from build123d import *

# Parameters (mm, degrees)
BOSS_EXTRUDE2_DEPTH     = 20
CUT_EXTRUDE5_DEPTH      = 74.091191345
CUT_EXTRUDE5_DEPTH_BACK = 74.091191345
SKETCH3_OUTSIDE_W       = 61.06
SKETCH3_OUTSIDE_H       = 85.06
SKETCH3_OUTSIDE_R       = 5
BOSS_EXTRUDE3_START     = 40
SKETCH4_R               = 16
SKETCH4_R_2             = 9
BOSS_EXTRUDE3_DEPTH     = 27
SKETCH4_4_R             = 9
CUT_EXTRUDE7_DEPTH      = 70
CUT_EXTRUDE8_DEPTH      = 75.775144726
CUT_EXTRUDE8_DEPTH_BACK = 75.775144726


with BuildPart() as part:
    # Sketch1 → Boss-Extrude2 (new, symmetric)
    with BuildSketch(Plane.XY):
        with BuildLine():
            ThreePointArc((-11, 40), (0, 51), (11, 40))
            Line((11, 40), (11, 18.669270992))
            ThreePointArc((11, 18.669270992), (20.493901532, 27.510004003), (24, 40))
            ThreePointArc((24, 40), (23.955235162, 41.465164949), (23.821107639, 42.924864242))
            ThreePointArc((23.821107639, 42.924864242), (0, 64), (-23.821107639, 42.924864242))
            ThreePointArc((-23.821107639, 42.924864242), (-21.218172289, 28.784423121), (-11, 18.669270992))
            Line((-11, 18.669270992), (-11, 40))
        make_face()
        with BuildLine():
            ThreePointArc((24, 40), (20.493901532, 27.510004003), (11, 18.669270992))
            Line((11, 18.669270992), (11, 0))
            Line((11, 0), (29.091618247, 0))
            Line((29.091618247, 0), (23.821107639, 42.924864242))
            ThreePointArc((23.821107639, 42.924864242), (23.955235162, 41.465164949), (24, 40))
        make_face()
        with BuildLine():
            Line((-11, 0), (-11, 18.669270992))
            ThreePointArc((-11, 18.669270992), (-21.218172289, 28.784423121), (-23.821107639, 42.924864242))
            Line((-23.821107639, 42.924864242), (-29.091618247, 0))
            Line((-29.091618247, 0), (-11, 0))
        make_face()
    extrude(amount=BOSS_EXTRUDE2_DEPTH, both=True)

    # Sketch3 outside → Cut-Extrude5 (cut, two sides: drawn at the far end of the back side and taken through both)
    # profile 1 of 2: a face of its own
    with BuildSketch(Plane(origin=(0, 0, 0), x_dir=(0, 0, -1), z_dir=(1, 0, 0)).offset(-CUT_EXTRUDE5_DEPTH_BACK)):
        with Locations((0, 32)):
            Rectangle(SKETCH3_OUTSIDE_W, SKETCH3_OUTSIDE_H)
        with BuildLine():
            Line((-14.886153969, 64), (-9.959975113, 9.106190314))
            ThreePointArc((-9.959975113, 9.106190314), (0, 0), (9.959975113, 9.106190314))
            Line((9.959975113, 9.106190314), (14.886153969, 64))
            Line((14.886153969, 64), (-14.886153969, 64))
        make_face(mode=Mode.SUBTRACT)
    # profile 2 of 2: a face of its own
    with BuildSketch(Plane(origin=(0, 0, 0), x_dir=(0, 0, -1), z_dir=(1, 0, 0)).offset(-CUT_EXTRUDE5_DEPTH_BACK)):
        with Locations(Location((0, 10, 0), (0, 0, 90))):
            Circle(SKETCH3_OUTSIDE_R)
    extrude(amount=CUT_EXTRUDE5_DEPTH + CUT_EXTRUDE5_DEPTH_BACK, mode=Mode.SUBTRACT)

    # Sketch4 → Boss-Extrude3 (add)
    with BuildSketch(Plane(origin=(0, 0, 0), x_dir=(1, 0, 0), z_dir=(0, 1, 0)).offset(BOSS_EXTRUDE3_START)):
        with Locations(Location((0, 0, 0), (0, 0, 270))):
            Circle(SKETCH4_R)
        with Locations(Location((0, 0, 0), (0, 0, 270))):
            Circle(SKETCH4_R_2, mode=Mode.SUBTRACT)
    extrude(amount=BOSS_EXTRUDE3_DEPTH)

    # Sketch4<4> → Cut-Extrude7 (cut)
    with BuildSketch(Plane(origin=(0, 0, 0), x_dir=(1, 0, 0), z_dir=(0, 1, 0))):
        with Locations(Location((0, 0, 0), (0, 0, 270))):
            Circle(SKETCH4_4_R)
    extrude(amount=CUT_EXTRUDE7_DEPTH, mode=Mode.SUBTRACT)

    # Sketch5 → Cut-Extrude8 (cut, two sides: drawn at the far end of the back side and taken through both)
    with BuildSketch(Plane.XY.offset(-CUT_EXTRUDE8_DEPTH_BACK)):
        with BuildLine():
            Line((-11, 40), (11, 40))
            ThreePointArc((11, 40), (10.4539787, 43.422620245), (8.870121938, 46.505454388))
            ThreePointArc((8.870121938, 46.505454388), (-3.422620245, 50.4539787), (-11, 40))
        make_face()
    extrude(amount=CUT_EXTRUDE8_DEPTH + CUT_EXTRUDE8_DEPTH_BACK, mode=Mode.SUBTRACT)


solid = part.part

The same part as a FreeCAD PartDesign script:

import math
import FreeCAD as App
import Part
import Sketcher
Q = App.Units.Quantity

doc = App.newDocument("Part")
body = doc.addObject("PartDesign::Body", "Body")

# Sketch on XY plane
sketch1 = body.newObject("Sketcher::SketchObject", "Sketch")
sketch1.AttachmentSupport = (doc.getObject("XY_Plane"), [""])
sketch1.MapMode = "FlatFace"
sketch1.addGeometry([
    Part.ArcOfCircle(Part.Circle(App.Vector(0, 40, 0), App.Vector(0, 0, 1), 11), math.radians(0), math.radians(180)),  # 0
    Part.LineSegment(App.Vector(11, 40, 0), App.Vector(11, 0, 0)),  # 1
    Part.LineSegment(App.Vector(11, 0, 0), App.Vector(29.091618, 0, 0)),  # 2
    Part.LineSegment(App.Vector(29.091618, 0, 0), App.Vector(23.821108, 42.924864, 0)),  # 3
    Part.ArcOfCircle(Part.Circle(App.Vector(0, 40, 0), App.Vector(0, 0, 1), 24), math.radians(7), math.radians(173)),  # 4
    Part.LineSegment(App.Vector(-23.821108, 42.924864, 0), App.Vector(-29.091618, 0, 0)),  # 5
    Part.LineSegment(App.Vector(-29.091618, 0, 0), App.Vector(-11, 0, 0)),  # 6
    Part.LineSegment(App.Vector(-11, 0, 0), App.Vector(-11, 40, 0)),  # 7
], False)
sketch1.addConstraint([
    Sketcher.Constraint("Tangent", 0, 1, 1, 1),
    Sketcher.Constraint("Coincident", 1, 2, 2, 1),
    Sketcher.Constraint("Coincident", 2, 2, 3, 1),
    Sketcher.Constraint("Tangent", 3, 2, 4, 1),
    Sketcher.Constraint("Tangent", 4, 2, 5, 1),
    Sketcher.Constraint("Coincident", 5, 2, 6, 1),
    Sketcher.Constraint("Coincident", 6, 2, 7, 1),
    Sketcher.Constraint("Tangent", 7, 2, 0, 2),
    Sketcher.Constraint("Vertical", 1),
    Sketcher.Constraint("Horizontal", 2),
    Sketcher.Constraint("Horizontal", 6),
    Sketcher.Constraint("Vertical", 7),
    Sketcher.Constraint("Coincident", 4, 3, 0, 3),
    Sketcher.Constraint("Symmetric", 2, 2, 5, 2, -1, 1),
    Sketcher.Constraint("Symmetric", 1, 2, 6, 2, -2),
    Sketcher.Constraint("Radius", 0, Q("11 mm")),
    Sketcher.Constraint("Radius", 4, Q("24 mm")),
    Sketcher.Constraint("DistanceY", 1, 2, 1, 1, Q("40 mm")),
    Sketcher.Constraint("Angle", 3, Q("97 deg")),
])
pad1 = body.newObject("PartDesign::Pad", "Pad")
pad1.Profile = sketch1
pad1.Length = 40
pad1.Midplane = True

# Sketch on YZ plane
sketch2 = body.newObject("Sketcher::SketchObject", "Sketch001")
sketch2.AttachmentSupport = (doc.getObject("YZ_Plane"), [""])
sketch2.MapMode = "FlatFace"
sketch2.addGeometry([
    Part.LineSegment(App.Vector(74.53, 30.53, 0), App.Vector(-10.53, 30.53, 0)),  # 0
    Part.LineSegment(App.Vector(-10.53, 30.53, 0), App.Vector(-10.53, -30.53, 0)),  # 1
    Part.LineSegment(App.Vector(-10.53, -30.53, 0), App.Vector(74.53, -30.53, 0)),  # 2
    Part.LineSegment(App.Vector(74.53, -30.53, 0), App.Vector(74.53, 30.53, 0)),  # 3
    Part.LineSegment(App.Vector(9.10619, 9.959975, 0), App.Vector(64, 14.886154, 0)),  # 4
    Part.LineSegment(App.Vector(64, 14.886154, 0), App.Vector(64, -14.886154, 0)),  # 5
    Part.LineSegment(App.Vector(64, -14.886154, 0), App.Vector(9.10619, -9.959975, 0)),  # 6
    Part.ArcOfCircle(Part.Circle(App.Vector(10, 0, 0), App.Vector(0, 0, 1), 10), math.radians(95.127996), math.radians(264.872004)),  # 7
    Part.Circle(App.Vector(10, 0, 0), App.Vector(0, 0, 1), 5),  # 8
], False)
sketch2.addConstraint([
    Sketcher.Constraint("Coincident", 0, 2, 1, 1),
    Sketcher.Constraint("Coincident", 1, 2, 2, 1),
    Sketcher.Constraint("Coincident", 2, 2, 3, 1),
    Sketcher.Constraint("Coincident", 3, 2, 0, 1),
    Sketcher.Constraint("Coincident", 4, 2, 5, 1),
    Sketcher.Constraint("Coincident", 5, 2, 6, 1),
    Sketcher.Constraint("Tangent", 6, 2, 7, 2),
    Sketcher.Constraint("Tangent", 7, 1, 4, 1),
    Sketcher.Constraint("Horizontal", 0),
    Sketcher.Constraint("Vertical", 1),
    Sketcher.Constraint("Horizontal", 2),
    Sketcher.Constraint("Vertical", 3),
    Sketcher.Constraint("Vertical", 5),
    Sketcher.Constraint("Coincident", 8, 3, 7, 3),
    Sketcher.Constraint("Symmetric", 6, 2, 7, 1, -1),
    Sketcher.Constraint("Diameter", 8, Q("10 mm")),
    Sketcher.Constraint("Radius", 7, Q("10 mm")),
    Sketcher.Constraint("DistanceX", -1, 1, 7, 3, Q("10 mm")),
    Sketcher.Constraint("DistanceX", -1, 1, 4, 2, Q("64 mm")),
    Sketcher.Constraint("DistanceX", 0, 2, 0, 1, Q("85.06 mm")),
    Sketcher.Constraint("DistanceY", 1, 2, 1, 1, Q("61.06 mm")),
    Sketcher.Constraint("DistanceX", 0, 2, -1, 1, Q("10.53 mm")),
    Sketcher.Constraint("DistanceY", -1, 1, 0, 2, Q("30.53 mm")),
    Sketcher.Constraint("DistanceY", 5, 2, 5, 1, Q("29.772308 mm")),
])
pocket1 = body.newObject("PartDesign::Pocket", "Pocket")
pocket1.Profile = sketch2
pocket1.Type = "ThroughAll"
pocket1.Midplane = True

# Sketch on XZ plane
sketch3 = body.newObject("Sketcher::SketchObject", "Sketch002")
sketch3.AttachmentSupport = (doc.getObject("XZ_Plane"), [""])
sketch3.MapMode = "FlatFace"
sketch3.AttachmentOffset = App.Placement(App.Vector(0, 0, -40), App.Rotation())
sketch3.addGeometry([
    Part.Circle(App.Vector(0, 0, 0), App.Vector(0, 0, 1), 16),
    Part.Circle(App.Vector(0, 0, 0), App.Vector(0, 0, 1), 9),
], False)
sketch3.addConstraint([
    Sketcher.Constraint("Coincident", 0, 3, -1, 1),
    Sketcher.Constraint("Coincident", 1, 3, -1, 1),
    Sketcher.Constraint("Diameter", 0, Q("32 mm")),
    Sketcher.Constraint("Diameter", 1, Q("18 mm")),
])
pad2 = body.newObject("PartDesign::Pad", "Pad001")
pad2.Profile = sketch3
pad2.Length = 27
pad2.Reversed = True

# Sketch on XZ plane
sketch4 = body.newObject("Sketcher::SketchObject", "Sketch003")
sketch4.AttachmentSupport = (doc.getObject("XZ_Plane"), [""])
sketch4.MapMode = "FlatFace"
sketch4.addGeometry(Part.Circle(App.Vector(0, 0, 0), App.Vector(0, 0, 1), 9), False)
sketch4.addConstraint([
    Sketcher.Constraint("Coincident", 0, 3, -1, 1),
    Sketcher.Constraint("Diameter", 0, Q("18 mm")),
])
pocket2 = body.newObject("PartDesign::Pocket", "Pocket001")
pocket2.Profile = sketch4
pocket2.Length = 70

# Sketch on XY plane
sketch5 = body.newObject("Sketcher::SketchObject", "Sketch004")
sketch5.AttachmentSupport = (doc.getObject("XY_Plane"), [""])
sketch5.MapMode = "FlatFace"
sketch5.addGeometry([
    Part.LineSegment(App.Vector(-11, 40, 0), App.Vector(11, 40, 0)),
    Part.ArcOfCircle(Part.Circle(App.Vector(0, 40, 0), App.Vector(0, 0, 1), 11), math.radians(0), math.radians(36.256771)),
    Part.ArcOfCircle(Part.Circle(App.Vector(0, 40, 0), App.Vector(0, 0, 1), 11), math.radians(36.256771), math.radians(180)),
], False)
sketch5.addConstraint([
    Sketcher.Constraint("Coincident", 0, 2, 1, 1),
    Sketcher.Constraint("Tangent", 1, 2, 2, 1),
    Sketcher.Constraint("Coincident", 2, 2, 0, 1),
    Sketcher.Constraint("Horizontal", 0),
    Sketcher.Constraint("Equal", 1, 2),
    Sketcher.Constraint("PointOnObject", 1, 3, -2),
    Sketcher.Constraint("Horizontal", 2, 3, 0, 2),
    Sketcher.Constraint("Radius", 1, Q("11 mm")),
    Sketcher.Constraint("DistanceY", -1, 1, 1, 3, Q("40 mm")),
    Sketcher.Constraint("DistanceX", -1, 1, 1, 2, Q("8.870122 mm")),
])
pocket3 = body.newObject("PartDesign::Pocket", "Pocket002")
pocket3.Profile = sketch5
pocket3.Type = "ThroughAll"
pocket3.Midplane = True

doc.recompute()
